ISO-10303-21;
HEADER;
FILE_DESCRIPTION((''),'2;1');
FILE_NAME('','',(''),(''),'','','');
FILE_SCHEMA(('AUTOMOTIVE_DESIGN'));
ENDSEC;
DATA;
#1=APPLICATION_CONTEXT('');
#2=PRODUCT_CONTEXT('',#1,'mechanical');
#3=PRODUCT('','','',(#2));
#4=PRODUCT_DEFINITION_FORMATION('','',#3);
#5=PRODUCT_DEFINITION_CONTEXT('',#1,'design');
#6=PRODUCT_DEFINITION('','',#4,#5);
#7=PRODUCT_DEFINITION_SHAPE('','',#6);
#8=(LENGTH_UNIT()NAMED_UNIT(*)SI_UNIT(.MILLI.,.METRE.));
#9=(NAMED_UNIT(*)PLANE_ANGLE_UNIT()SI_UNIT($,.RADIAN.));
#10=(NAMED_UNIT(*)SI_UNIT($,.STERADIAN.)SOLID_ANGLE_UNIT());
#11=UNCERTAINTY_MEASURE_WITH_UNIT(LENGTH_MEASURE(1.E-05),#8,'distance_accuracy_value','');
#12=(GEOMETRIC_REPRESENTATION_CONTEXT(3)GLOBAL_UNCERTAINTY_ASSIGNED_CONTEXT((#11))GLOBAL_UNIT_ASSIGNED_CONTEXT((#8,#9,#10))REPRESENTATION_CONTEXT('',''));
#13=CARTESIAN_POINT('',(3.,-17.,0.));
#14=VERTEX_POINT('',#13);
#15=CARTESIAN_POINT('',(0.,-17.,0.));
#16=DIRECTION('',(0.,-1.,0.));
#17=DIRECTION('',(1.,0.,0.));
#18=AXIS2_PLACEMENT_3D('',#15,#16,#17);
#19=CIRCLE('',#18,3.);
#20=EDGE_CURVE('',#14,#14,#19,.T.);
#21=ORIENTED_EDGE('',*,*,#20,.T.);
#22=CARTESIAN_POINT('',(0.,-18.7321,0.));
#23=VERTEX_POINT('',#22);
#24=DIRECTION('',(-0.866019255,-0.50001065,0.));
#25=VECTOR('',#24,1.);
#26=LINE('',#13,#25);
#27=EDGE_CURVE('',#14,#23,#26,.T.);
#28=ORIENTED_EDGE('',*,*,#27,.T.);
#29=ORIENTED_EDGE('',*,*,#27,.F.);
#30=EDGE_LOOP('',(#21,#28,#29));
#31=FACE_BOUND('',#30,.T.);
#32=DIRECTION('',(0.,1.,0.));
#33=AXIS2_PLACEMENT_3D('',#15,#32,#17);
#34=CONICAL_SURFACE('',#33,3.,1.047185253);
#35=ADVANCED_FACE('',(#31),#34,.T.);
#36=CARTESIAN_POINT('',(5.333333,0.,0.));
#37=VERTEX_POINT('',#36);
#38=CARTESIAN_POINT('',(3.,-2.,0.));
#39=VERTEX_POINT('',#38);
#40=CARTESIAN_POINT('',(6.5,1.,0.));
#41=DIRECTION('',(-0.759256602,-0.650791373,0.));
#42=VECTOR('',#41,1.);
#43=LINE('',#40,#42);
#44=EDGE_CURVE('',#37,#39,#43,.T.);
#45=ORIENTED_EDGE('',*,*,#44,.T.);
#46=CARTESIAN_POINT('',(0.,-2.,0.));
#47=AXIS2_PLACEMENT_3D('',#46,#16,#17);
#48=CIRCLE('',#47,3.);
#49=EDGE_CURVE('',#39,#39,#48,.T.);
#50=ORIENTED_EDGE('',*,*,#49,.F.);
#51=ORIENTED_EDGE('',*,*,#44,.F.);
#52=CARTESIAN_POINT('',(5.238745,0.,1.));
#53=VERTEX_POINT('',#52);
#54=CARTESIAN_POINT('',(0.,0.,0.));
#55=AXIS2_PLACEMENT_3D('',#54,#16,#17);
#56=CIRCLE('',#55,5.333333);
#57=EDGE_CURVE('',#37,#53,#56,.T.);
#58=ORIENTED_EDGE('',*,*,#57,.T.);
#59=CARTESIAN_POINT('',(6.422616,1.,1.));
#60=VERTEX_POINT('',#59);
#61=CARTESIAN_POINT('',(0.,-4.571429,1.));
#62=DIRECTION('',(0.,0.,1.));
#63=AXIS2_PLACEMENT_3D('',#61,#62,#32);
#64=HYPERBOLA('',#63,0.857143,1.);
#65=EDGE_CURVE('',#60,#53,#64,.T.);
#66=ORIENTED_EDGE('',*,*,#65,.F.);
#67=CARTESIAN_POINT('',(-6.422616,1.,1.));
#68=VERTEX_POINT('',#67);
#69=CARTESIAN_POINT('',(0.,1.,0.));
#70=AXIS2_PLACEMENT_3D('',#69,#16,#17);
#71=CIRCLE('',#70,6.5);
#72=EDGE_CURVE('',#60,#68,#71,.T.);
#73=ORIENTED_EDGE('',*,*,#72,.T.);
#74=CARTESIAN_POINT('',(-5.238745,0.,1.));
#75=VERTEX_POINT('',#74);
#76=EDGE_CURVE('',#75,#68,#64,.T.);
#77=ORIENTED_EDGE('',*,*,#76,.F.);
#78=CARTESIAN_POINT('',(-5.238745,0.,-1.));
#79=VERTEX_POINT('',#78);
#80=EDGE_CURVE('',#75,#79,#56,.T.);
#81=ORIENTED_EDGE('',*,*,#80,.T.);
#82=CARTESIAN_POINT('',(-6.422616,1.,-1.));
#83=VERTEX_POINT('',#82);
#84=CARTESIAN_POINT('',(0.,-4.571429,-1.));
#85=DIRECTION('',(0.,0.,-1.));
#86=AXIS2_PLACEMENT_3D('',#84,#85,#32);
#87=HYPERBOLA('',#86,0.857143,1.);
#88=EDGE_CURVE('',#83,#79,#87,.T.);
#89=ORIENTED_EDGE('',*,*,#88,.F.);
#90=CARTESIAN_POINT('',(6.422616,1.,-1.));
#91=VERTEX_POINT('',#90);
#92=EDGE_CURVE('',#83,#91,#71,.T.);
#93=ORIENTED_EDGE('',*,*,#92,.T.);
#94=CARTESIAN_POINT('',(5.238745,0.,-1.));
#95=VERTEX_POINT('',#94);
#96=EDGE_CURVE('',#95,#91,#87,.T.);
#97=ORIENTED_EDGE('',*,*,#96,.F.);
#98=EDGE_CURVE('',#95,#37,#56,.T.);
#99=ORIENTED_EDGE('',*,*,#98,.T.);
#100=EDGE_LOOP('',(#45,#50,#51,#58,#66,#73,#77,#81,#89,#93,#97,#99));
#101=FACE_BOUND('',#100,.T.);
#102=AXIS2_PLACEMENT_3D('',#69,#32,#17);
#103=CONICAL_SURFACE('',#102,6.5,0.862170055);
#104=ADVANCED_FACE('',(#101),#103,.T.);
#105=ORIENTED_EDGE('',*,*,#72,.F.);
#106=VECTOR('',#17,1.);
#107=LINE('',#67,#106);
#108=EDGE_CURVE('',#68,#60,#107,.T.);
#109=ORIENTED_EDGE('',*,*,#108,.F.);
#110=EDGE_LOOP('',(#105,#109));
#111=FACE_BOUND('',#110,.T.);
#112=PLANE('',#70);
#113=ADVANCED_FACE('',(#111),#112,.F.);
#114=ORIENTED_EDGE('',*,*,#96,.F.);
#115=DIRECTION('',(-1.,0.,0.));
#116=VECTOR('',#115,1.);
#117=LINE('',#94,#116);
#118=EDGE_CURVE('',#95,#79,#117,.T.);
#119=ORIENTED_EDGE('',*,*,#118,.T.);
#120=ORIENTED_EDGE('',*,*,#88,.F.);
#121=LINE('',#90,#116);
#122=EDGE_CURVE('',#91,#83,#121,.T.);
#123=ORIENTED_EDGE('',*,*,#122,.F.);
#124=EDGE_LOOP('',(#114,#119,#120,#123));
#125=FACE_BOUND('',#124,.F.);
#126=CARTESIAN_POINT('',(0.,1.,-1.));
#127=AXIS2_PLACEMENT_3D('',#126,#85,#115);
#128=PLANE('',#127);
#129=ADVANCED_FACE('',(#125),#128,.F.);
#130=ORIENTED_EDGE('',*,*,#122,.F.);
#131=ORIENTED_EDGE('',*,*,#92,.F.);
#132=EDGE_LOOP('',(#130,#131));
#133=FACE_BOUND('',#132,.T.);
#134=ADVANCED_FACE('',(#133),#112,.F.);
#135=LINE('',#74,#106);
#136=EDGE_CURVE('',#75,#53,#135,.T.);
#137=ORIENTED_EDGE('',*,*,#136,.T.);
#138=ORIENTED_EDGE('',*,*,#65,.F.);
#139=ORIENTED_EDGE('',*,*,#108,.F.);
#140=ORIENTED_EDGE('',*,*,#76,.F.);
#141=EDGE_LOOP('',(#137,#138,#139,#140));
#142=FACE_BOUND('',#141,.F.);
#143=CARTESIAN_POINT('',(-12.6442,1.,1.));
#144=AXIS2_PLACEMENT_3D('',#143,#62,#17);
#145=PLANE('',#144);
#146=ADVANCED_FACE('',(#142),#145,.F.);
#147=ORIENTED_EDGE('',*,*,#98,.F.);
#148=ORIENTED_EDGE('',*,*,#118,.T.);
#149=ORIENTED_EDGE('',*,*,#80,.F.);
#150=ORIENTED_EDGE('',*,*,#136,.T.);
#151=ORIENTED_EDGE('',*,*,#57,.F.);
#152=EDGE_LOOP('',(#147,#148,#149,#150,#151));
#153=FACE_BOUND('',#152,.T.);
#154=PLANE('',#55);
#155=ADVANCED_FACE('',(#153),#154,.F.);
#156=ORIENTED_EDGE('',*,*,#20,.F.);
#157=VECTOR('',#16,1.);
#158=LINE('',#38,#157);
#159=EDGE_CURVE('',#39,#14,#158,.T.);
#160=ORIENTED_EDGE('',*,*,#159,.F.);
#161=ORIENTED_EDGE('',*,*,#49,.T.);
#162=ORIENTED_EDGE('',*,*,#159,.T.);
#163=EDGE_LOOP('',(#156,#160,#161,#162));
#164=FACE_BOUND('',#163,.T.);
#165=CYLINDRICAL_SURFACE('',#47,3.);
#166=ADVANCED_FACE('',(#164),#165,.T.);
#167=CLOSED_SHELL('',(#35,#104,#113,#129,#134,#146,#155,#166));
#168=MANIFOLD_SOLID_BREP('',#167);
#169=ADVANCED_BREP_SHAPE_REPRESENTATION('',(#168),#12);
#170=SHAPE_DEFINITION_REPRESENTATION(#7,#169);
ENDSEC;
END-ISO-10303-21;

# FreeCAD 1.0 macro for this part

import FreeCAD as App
import Part
import Sketcher
Q = App.Units.Quantity

doc = App.newDocument("Part")
body = doc.addObject("PartDesign::Body", "Body")

sketch1 = body.newObject("Sketcher::SketchObject", "Sketch")
sketch1.AttachmentSupport = (doc.getObject("XY_Plane"), [""])
sketch1.MapMode = "FlatFace"
sketch1.addGeometry(Part.LineSegment(App.Vector(1, 0, 0), App.Vector(0, 0, 0)), False)
sketch1.addGeometry(Part.LineSegment(App.Vector(0, 0, 0), App.Vector(0, -18.7321, 0)), False)
sketch1.addGeometry(Part.LineSegment(App.Vector(0, -18.7321, 0), App.Vector(3, -17, 0)), False)
sketch1.addGeometry(Part.LineSegment(App.Vector(3, -17, 0), App.Vector(3, -2, 0)), False)
sketch1.addGeometry(Part.LineSegment(App.Vector(3, -2, 0), App.Vector(6.5, 1, 0)), False)
sketch1.addGeometry(Part.LineSegment(App.Vector(6.5, 1, 0), App.Vector(1, 1, 0)), False)
sketch1.addGeometry(Part.LineSegment(App.Vector(1, 1, 0), App.Vector(1, 0, 0)), False)
sketch1.addConstraint(Sketcher.Constraint("Coincident", 0, 2, 1, 1))
sketch1.addConstraint(Sketcher.Constraint("Coincident", 1, 2, 2, 1))
sketch1.addConstraint(Sketcher.Constraint("Coincident", 2, 2, 3, 1))
sketch1.addConstraint(Sketcher.Constraint("Coincident", 3, 2, 4, 1))
sketch1.addConstraint(Sketcher.Constraint("Coincident", 4, 2, 5, 1))
sketch1.addConstraint(Sketcher.Constraint("Coincident", 5, 2, 6, 1))
sketch1.addConstraint(Sketcher.Constraint("Coincident", 6, 2, 0, 1))
sketch1.addConstraint(Sketcher.Constraint("Horizontal", 0))
sketch1.addConstraint(Sketcher.Constraint("Vertical", 1))
sketch1.addConstraint(Sketcher.Constraint("Vertical", 3))
sketch1.addConstraint(Sketcher.Constraint("Horizontal", 5))
sketch1.addConstraint(Sketcher.Constraint("Vertical", 6))
sketch1.addConstraint(Sketcher.Constraint("Coincident", 0, 2, -1, 1))
sketch1.addConstraint(Sketcher.Constraint("Equal", 0, 6))
sketch1.addConstraint(Sketcher.Constraint("DistanceX", 0, 2, 0, 1, 1.0))
sketch1.addConstraint(Sketcher.Constraint("DistanceY", 3, 1, 3, 2, 15.0))
sketch1.addConstraint(Sketcher.Constraint("DistanceX", 5, 2, 5, 1, 5.5))
sketch1.addConstraint(Sketcher.Constraint("DistanceX", -1, 1, 2, 2, 3.0))
sketch1.addConstraint(Sketcher.Constraint("DistanceY", 3, 2, 4, 2, 3.0))
sketch1.addConstraint(Sketcher.Constraint("Angle", 2, Q("30.0007 deg")))
revolution = body.newObject("PartDesign::Revolution", "Revolution")
revolution.Profile = sketch1
revolution.ReferenceAxis = (sketch1, ["V_Axis"])
revolution.Angle = 360

sketch2 = body.newObject("Sketcher::SketchObject", "Sketch001")
sketch2.AttachmentSupport = (doc.getObject("XZ_Plane"), [""])
sketch2.MapMode = "FlatFace"
sketch2.AttachmentOffset = App.Placement(App.Vector(0, 0, -1), App.Rotation())
sketch2.addGeometry(Part.LineSegment(App.Vector(-12.6442, -1, 0), App.Vector(-12.6442, 1, 0)), False)
sketch2.addGeometry(Part.LineSegment(App.Vector(-12.6442, 1, 0), App.Vector(7.3558, 1, 0)), False)
sketch2.addGeometry(Part.LineSegment(App.Vector(7.3558, 1, 0), App.Vector(7.3558, -1, 0)), False)
sketch2.addGeometry(Part.LineSegment(App.Vector(7.3558, -1, 0), App.Vector(-12.6442, -1, 0)), False)
sketch2.addConstraint(Sketcher.Constraint("Coincident", 0, 2, 1, 1))
sketch2.addConstraint(Sketcher.Constraint("Coincident", 1, 2, 2, 1))
sketch2.addConstraint(Sketcher.Constraint("Coincident", 2, 2, 3, 1))
sketch2.addConstraint(Sketcher.Constraint("Coincident", 3, 2, 0, 1))
sketch2.addConstraint(Sketcher.Constraint("Vertical", 0))
sketch2.addConstraint(Sketcher.Constraint("Horizontal", 1))
sketch2.addConstraint(Sketcher.Constraint("Vertical", 2))
sketch2.addConstraint(Sketcher.Constraint("Horizontal", 3))
sketch2.addConstraint(Sketcher.Constraint("DistanceX", 1, 1, 1, 2, 20.0))
sketch2.addConstraint(Sketcher.Constraint("DistanceY", 0, 1, 0, 2, 2.0))
sketch2.addConstraint(Sketcher.Constraint("DistanceY", -1, 1, 0, 2, 1.0))
sketch2.addConstraint(Sketcher.Constraint("DistanceX", 0, 2, -1, 1, 12.6442))
pocket1 = body.newObject("PartDesign::Pocket", "Pocket")
pocket1.Profile = sketch2
pocket1.Length = 1
pocket1.Reversed = True

doc.recompute()
